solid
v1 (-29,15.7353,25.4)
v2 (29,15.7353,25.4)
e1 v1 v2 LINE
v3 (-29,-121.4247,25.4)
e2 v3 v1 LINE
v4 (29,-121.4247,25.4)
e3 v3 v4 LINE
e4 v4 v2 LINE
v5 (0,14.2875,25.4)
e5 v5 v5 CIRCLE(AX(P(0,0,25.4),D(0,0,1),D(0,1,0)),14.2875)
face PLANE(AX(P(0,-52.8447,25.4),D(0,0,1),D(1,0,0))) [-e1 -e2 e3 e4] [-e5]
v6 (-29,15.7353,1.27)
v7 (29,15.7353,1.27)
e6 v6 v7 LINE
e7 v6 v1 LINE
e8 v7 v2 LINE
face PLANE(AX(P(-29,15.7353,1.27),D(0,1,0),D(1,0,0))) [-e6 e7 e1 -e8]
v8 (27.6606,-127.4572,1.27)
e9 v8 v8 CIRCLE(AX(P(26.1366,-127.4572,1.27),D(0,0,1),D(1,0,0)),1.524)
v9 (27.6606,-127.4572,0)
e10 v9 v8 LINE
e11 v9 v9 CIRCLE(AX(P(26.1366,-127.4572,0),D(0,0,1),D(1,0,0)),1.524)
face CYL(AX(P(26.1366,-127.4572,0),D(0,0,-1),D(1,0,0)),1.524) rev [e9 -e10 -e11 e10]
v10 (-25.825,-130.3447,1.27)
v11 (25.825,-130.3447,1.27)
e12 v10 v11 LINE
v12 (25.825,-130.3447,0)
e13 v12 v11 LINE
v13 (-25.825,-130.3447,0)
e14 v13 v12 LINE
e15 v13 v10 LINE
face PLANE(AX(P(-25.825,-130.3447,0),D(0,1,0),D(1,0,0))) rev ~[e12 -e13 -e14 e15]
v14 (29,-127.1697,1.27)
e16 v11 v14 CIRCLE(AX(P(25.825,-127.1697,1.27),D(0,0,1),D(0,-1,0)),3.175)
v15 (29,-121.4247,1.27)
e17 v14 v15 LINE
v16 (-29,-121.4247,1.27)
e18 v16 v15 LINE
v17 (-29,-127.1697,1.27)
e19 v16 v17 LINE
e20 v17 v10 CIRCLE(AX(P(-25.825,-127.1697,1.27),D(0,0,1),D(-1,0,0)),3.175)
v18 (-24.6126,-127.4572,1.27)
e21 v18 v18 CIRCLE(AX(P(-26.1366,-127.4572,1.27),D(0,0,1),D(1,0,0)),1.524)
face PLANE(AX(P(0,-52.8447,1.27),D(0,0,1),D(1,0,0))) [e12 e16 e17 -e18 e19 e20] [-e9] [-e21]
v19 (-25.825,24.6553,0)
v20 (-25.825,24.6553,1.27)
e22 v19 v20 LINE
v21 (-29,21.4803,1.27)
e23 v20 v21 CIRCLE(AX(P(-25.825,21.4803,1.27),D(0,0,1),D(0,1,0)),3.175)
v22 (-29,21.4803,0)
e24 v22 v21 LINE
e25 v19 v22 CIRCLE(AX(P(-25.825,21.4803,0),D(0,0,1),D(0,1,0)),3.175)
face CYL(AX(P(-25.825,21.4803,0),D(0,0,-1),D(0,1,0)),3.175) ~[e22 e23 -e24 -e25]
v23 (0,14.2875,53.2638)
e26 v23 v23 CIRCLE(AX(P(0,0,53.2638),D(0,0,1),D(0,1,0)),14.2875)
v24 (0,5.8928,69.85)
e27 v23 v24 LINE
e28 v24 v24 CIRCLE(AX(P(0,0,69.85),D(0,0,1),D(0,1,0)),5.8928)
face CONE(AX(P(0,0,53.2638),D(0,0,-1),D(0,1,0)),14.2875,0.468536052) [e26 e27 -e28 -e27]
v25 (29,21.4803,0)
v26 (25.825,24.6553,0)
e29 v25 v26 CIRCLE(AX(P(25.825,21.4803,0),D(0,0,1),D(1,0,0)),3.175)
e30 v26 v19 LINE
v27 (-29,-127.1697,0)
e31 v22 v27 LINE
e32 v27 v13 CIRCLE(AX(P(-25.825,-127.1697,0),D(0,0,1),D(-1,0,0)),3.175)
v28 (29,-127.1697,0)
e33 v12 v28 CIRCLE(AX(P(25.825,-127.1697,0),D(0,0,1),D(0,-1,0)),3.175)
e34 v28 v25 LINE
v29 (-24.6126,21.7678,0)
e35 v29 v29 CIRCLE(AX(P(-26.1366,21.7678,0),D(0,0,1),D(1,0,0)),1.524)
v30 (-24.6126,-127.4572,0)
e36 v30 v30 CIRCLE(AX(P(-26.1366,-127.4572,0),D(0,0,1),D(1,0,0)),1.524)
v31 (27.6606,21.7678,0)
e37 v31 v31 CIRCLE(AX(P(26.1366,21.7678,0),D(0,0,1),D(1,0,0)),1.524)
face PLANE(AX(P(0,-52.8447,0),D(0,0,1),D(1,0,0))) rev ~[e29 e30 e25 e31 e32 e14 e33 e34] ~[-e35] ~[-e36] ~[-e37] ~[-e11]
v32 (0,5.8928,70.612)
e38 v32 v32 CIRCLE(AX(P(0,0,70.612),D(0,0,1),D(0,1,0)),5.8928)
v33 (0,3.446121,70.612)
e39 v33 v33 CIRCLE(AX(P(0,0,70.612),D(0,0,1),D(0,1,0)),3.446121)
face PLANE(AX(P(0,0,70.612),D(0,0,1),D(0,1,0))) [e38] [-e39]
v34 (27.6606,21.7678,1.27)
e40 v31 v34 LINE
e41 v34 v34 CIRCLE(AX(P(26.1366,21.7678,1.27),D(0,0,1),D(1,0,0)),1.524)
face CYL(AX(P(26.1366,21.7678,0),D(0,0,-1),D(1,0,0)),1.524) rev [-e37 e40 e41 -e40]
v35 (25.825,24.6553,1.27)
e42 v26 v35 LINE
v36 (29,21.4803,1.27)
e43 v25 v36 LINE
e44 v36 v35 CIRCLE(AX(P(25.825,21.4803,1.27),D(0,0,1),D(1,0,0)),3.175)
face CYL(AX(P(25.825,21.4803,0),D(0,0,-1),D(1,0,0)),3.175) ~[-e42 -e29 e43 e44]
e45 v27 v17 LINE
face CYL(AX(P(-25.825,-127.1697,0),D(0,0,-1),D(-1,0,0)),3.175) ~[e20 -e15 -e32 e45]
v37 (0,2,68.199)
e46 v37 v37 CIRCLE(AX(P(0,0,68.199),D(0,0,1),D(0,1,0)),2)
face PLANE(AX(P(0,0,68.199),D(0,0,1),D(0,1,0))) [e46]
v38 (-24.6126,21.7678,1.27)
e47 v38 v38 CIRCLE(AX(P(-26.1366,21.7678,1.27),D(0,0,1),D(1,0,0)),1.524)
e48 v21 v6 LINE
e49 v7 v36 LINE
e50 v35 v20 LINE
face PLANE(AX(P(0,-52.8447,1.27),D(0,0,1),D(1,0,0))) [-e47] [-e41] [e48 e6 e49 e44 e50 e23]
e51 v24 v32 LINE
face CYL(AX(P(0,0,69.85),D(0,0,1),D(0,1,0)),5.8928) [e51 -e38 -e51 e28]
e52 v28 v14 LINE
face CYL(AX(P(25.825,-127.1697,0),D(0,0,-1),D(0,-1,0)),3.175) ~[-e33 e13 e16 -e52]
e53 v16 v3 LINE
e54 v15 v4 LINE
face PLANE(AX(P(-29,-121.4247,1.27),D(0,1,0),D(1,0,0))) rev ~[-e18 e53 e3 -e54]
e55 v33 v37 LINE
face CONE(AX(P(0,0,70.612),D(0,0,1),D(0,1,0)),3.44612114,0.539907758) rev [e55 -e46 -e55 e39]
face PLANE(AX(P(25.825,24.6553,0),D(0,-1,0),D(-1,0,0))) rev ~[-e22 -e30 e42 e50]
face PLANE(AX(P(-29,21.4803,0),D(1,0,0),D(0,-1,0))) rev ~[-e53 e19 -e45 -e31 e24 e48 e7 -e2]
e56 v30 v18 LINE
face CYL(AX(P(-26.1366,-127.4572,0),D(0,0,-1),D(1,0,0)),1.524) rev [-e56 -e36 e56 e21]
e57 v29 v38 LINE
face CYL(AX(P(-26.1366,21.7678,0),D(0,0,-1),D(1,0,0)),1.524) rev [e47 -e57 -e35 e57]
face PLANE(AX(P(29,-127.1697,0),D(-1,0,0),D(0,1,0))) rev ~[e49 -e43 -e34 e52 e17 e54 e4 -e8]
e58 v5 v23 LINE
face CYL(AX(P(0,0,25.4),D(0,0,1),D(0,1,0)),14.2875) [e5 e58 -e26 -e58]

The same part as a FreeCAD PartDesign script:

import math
import FreeCAD as App
import Part
import Sketcher
Q = App.Units.Quantity


def add_polygon(sketch, points):
    """Adds a closed chain of lines whose ends are joined by coincident constraints."""
    first, n = sketch.GeometryCount, len(points)
    for a, b in zip(points, points[1:] + points[:1]):
        sketch.addGeometry(Part.LineSegment(App.Vector(*a, 0), App.Vector(*b, 0)), False)
    for i in range(n):
        sketch.addConstraint(Sketcher.Constraint("Coincident", first + i, 2, first + (i + 1) % n, 1))

doc = App.newDocument("Part")
body = doc.addObject("PartDesign::Body", "Body")

# Sketch on XY plane
sketch1 = doc.addObject("Sketcher::SketchObject", "Sketch")
body.addObject(sketch1)
sketch1.AttachmentSupport = (doc.XY_Plane, [""])
sketch1.MapMode = "FlatFace"
sketch1.addGeometry(Part.LineSegment(App.Vector(-29, 21.5, 0), App.Vector(-29, -127.2, 0)), False)
sketch1.addGeometry(Part.ArcOfCircle(Part.Circle(App.Vector(-25.8, -127.2, 0), App.Vector(0, 0, 1), 3.2), math.radians(180), math.radians(270)), False)
sketch1.addGeometry(Part.LineSegment(App.Vector(-25.8, -130.3, 0), App.Vector(25.8, -130.3, 0)), False)
sketch1.addGeometry(Part.ArcOfCircle(Part.Circle(App.Vector(25.8, -127.2, 0), App.Vector(0, 0, 1), 3.2), math.radians(-90), math.radians(0)), False)
sketch1.addGeometry(Part.LineSegment(App.Vector(29, -127.2, 0), App.Vector(29, 21.5, 0)), False)
sketch1.addGeometry(Part.ArcOfCircle(Part.Circle(App.Vector(25.8, 21.5, 0), App.Vector(0, 0, 1), 3.2), math.radians(0), math.radians(90)), False)
sketch1.addGeometry(Part.LineSegment(App.Vector(25.8, 24.7, 0), App.Vector(-25.8, 24.7, 0)), False)
sketch1.addGeometry(Part.ArcOfCircle(Part.Circle(App.Vector(-25.8, 21.5, 0), App.Vector(0, 0, 1), 3.2), math.radians(90), math.radians(180)), False)
sketch1.addGeometry(Part.Circle(App.Vector(-26.1, -127.5, 0), App.Vector(0, 0, 1), 1.5), False)
sketch1.addGeometry(Part.Circle(App.Vector(26.1, -127.5, 0), App.Vector(0, 0, 1), 1.5), False)
sketch1.addGeometry(Part.Circle(App.Vector(-26.1, 21.8, 0), App.Vector(0, 0, 1), 1.5), False)
sketch1.addGeometry(Part.Circle(App.Vector(26.1, 21.8, 0), App.Vector(0, 0, 1), 1.5), False)
sketch1.addConstraint(Sketcher.Constraint("Tangent", 0, 2, 1, 1))
sketch1.addConstraint(Sketcher.Constraint("Tangent", 1, 2, 2, 1))
sketch1.addConstraint(Sketcher.Constraint("Tangent", 2, 2, 3, 1))
sketch1.addConstraint(Sketcher.Constraint("Tangent", 3, 2, 4, 1))
sketch1.addConstraint(Sketcher.Constraint("Tangent", 4, 2, 5, 1))
sketch1.addConstraint(Sketcher.Constraint("Tangent", 5, 2, 6, 1))
sketch1.addConstraint(Sketcher.Constraint("Tangent", 6, 2, 7, 1))
sketch1.addConstraint(Sketcher.Constraint("Tangent", 7, 2, 0, 1))
sketch1.addConstraint(Sketcher.Constraint("Vertical", 0))
sketch1.addConstraint(Sketcher.Constraint("Horizontal", 2))
sketch1.addConstraint(Sketcher.Constraint("Vertical", 4))
sketch1.addConstraint(Sketcher.Constraint("Horizontal", 6))
sketch1.addConstraint(Sketcher.Constraint("Equal", 1, 3))
sketch1.addConstraint(Sketcher.Constraint("Equal", 3, 5))
sketch1.addConstraint(Sketcher.Constraint("Equal", 5, 7))
sketch1.addConstraint(Sketcher.Constraint("Equal", 8, 9))
sketch1.addConstraint(Sketcher.Constraint("Equal", 9, 10))
sketch1.addConstraint(Sketcher.Constraint("Equal", 10, 11))
sketch1.addConstraint(Sketcher.Constraint("Symmetric", 8, 3, 9, 3, -2))
sketch1.addConstraint(Sketcher.Constraint("Symmetric", 10, 3, 11, 3, -2))
sketch1.addConstraint(Sketcher.Constraint("Vertical", 8, 3, 10, 3))
sketch1.addConstraint(Sketcher.Constraint("Diameter", 8, Q("0.12 in")))
sketch1.addConstraint(Sketcher.Constraint("Radius", 1, Q("0.125 in")))
sketch1.addConstraint(Sketcher.Constraint("DistanceX", 8, 3, -1, 1, Q("1.029 in")))
sketch1.addConstraint(Sketcher.Constraint("DistanceY", 8, 3, -1, 1, Q("5.018 in")))
sketch1.addConstraint(Sketcher.Constraint("DistanceY", -1, 1, 10, 3, Q("0.857 in")))
sketch1.addConstraint(Sketcher.Constraint("DistanceX", 2, 1, 2, 2, Q("51.65 mm")))
sketch1.addConstraint(Sketcher.Constraint("DistanceY", 0, 2, 0, 1, Q("148.65 mm")))
sketch1.addConstraint(Sketcher.Constraint("DistanceX", 1, 3, -1, 1, Q("25.825 mm")))
sketch1.addConstraint(Sketcher.Constraint("DistanceY", 1, 3, -1, 1, Q("127.1697 mm")))
pad1 = doc.addObject("PartDesign::Pad", "Pad")
body.addObject(pad1)
pad1.Profile = sketch1
pad1.Length = Q("0.05 in")

# Sketch on XY plane
sketch2 = doc.addObject("Sketcher::SketchObject", "Sketch001")
body.addObject(sketch2)
sketch2.AttachmentSupport = (doc.XY_Plane, [""])
sketch2.MapMode = "FlatFace"
sketch2.AttachmentOffset = App.Placement(App.Vector(0, 0, 0.05 * 25.4), App.Rotation())
add_polygon(sketch2, [(-29, 16), (-29, -121), (29, -121), (29, 16)])  # lines 0-3
sketch2.addConstraint(Sketcher.Constraint("Vertical", 0))
sketch2.addConstraint(Sketcher.Constraint("Horizontal", 1))
sketch2.addConstraint(Sketcher.Constraint("Vertical", 2))
sketch2.addConstraint(Sketcher.Constraint("Horizontal", 3))
sketch2.addConstraint(Sketcher.Constraint("DistanceY", 0, 2, 0, 1, Q("5.4 in")))
sketch2.addConstraint(Sketcher.Constraint("DistanceX", 1, 1, 1, 2, Q("58 mm")))
sketch2.addConstraint(Sketcher.Constraint("DistanceY", 0, 2, -1, 1, Q("4.7805 in")))
sketch2.addConstraint(Sketcher.Constraint("DistanceX", 0, 2, -1, 1, Q("29 mm")))
pad2 = doc.addObject("PartDesign::Pad", "Pad001")
body.addObject(pad2)
pad2.Profile = sketch2
pad2.Length = Q("0.95 in")

# Sketch on YZ plane
sketch3 = doc.addObject("Sketcher::SketchObject", "Sketch002")
body.addObject(sketch3)
sketch3.AttachmentSupport = (doc.YZ_Plane, [""])
sketch3.MapMode = "FlatFace"
add_polygon(sketch3, [(5.9, 70.6), (3.4, 70.6), (2, 68.2), (0, 68.2), (0, 25.4), (14.3, 25.4), (14.3, 53.3), (5.9, 69.8)])  # lines 0-7
sketch3.addConstraint(Sketcher.Constraint("Horizontal", 0))
sketch3.addConstraint(Sketcher.Constraint("Horizontal", 2))
sketch3.addConstraint(Sketcher.Constraint("Vertical", 3))
sketch3.addConstraint(Sketcher.Constraint("Horizontal", 4))
sketch3.addConstraint(Sketcher.Constraint("Vertical", 5))
sketch3.addConstraint(Sketcher.Constraint("Vertical", 7))
sketch3.addConstraint(Sketcher.Constraint("PointOnObject", 2, 2, -2))
sketch3.addConstraint(Sketcher.Constraint("DistanceY", -1, 1, 3, 2, Q("1 in")))
sketch3.addConstraint(Sketcher.Constraint("DistanceY", 7, 1, 7, 2, Q("0.03 in")))
sketch3.addConstraint(Sketcher.Constraint("DistanceX", 4, 1, 4, 2, Q("0.5625 in")))
sketch3.addConstraint(Sketcher.Constraint("DistanceY", 3, 2, 3, 1, Q("1.685 in")))
sketch3.addConstraint(Sketcher.Constraint("DistanceY", 5, 1, 5, 2, Q("1.097 in")))
sketch3.addConstraint(Sketcher.Constraint("DistanceY", -1, 1, 0, 2, Q("2.78 in")))
sketch3.addConstraint(Sketcher.Constraint("DistanceX", -1, 1, 6, 2, Q("0.232 in")))
sketch3.addConstraint(Sketcher.Constraint("DistanceX", 2, 2, 2, 1, Q("2 mm")))
sketch3.addConstraint(Sketcher.Constraint("DistanceX", 0, 2, 0, 1, Q("2.446679 mm")))
revolution = doc.addObject("PartDesign::Revolution", "Revolution")
body.addObject(revolution)
revolution.Profile = sketch3
revolution.ReferenceAxis = (sketch3, ["V_Axis"])
revolution.Angle = 360

doc.recompute()
